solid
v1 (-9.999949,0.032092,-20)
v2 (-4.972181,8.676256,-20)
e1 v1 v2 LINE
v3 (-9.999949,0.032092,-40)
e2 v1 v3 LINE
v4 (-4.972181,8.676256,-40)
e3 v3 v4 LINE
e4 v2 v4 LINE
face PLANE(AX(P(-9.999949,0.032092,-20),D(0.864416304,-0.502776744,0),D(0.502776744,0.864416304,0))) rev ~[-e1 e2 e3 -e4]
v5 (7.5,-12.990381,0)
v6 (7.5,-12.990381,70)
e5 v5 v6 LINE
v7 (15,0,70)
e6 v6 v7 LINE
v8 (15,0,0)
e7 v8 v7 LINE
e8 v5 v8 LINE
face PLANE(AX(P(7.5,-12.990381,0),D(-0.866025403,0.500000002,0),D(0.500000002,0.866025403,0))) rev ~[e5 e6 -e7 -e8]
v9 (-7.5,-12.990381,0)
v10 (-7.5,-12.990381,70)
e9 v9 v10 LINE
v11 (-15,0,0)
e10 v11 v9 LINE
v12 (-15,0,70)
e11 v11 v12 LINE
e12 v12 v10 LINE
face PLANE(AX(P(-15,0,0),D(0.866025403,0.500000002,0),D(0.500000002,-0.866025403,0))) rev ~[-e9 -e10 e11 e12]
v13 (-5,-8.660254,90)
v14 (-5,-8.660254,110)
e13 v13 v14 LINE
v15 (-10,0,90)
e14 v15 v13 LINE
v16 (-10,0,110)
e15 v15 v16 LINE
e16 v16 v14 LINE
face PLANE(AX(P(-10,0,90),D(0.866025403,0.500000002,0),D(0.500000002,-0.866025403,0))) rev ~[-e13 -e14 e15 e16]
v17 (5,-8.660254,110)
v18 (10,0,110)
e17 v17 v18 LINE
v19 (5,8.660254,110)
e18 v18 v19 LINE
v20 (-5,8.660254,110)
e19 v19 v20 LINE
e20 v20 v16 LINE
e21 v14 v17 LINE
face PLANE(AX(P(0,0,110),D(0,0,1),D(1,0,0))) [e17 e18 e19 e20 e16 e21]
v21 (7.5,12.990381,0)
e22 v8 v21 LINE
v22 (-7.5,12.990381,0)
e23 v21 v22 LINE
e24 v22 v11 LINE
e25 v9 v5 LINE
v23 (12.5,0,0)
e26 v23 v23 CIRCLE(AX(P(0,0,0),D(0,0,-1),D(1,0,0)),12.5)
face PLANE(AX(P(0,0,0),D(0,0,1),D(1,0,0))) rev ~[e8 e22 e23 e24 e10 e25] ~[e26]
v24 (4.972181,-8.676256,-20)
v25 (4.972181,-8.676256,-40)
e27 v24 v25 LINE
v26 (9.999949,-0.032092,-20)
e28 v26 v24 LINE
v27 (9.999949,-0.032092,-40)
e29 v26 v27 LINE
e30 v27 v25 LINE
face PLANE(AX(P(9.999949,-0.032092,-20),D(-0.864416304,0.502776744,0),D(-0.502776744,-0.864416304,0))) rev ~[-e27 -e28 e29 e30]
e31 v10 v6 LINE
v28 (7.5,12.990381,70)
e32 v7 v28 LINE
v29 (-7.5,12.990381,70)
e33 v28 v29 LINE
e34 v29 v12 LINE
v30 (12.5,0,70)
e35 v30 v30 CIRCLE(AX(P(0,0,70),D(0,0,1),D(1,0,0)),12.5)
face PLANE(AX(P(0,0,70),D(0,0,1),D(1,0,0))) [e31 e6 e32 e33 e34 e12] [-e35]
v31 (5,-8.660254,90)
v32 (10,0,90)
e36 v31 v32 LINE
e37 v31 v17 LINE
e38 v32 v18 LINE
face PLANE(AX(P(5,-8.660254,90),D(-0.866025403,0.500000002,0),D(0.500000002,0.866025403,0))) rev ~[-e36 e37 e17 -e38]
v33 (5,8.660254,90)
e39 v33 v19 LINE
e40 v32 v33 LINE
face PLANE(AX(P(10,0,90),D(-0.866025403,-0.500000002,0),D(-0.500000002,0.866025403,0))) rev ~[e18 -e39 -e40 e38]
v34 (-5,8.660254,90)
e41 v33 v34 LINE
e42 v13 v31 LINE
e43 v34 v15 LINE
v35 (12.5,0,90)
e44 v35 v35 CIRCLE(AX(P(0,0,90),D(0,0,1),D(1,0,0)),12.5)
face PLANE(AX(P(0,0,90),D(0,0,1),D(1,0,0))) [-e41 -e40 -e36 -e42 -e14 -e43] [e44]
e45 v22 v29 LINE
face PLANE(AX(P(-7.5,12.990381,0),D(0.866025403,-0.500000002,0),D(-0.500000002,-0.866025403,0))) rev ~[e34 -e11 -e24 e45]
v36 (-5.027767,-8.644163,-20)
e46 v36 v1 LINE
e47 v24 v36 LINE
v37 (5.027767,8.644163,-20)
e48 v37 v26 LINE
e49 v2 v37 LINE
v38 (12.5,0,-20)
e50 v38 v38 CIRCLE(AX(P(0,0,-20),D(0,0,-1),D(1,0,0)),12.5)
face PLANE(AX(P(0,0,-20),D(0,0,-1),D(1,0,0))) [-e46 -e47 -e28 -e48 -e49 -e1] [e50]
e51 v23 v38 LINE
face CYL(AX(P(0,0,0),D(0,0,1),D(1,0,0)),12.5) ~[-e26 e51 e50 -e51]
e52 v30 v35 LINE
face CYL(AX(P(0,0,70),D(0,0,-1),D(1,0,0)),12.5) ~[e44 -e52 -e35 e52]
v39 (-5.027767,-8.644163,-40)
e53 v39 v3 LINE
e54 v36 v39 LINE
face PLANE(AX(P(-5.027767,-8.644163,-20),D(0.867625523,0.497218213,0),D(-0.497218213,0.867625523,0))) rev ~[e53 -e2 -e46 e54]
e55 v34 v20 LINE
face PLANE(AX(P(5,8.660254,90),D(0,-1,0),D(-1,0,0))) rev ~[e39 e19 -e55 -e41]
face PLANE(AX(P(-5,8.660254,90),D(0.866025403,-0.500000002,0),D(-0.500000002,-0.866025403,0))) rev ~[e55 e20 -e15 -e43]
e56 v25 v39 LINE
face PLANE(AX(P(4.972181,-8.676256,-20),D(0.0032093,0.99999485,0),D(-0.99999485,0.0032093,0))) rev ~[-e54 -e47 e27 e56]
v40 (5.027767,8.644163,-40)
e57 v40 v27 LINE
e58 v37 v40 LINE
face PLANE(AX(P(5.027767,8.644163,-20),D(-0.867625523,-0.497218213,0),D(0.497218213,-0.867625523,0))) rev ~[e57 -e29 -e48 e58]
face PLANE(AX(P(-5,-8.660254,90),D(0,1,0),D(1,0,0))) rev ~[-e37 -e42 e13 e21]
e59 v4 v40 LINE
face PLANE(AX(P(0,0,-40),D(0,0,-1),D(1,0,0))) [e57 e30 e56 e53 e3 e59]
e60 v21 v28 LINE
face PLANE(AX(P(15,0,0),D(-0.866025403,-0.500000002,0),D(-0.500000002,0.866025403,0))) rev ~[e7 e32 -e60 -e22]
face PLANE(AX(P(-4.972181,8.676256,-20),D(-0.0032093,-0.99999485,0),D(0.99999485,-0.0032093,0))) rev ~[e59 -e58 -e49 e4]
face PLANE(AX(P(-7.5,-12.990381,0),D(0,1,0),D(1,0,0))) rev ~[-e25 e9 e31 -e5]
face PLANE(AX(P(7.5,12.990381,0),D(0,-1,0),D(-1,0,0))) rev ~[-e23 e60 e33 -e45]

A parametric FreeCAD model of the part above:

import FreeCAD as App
import Part
import Sketcher
from FreeCAD import Vector
Q = App.Units.Quantity

doc = App.newDocument("Part")
body = doc.addObject("PartDesign::Body", "Body")

sketch1 = body.newObject("Sketcher::SketchObject", "Sketch")
sketch1.AttachmentSupport = (doc.getObject("XY_Plane"), [""])
sketch1.MapMode = "FlatFace"
sketch1.addGeometry([
    Part.LineSegment(Vector(-8, 13, 0), Vector(-15, 0, 0)),
    Part.LineSegment(Vector(-15, 0, 0), Vector(-8, -13, 0)),
    Part.LineSegment(Vector(-8, -13, 0), Vector(8, -13, 0)),
    Part.LineSegment(Vector(8, -13, 0), Vector(15, 0, 0)),
    Part.LineSegment(Vector(15, 0, 0), Vector(8, 13, 0)),
    Part.LineSegment(Vector(8, 13, 0), Vector(-8, 13, 0)),
], False)
sketch1.addConstraint([
    Sketcher.Constraint("Coincident", 0, 2, 1, 1),
    Sketcher.Constraint("Coincident", 1, 2, 2, 1),
    Sketcher.Constraint("Coincident", 2, 2, 3, 1),
    Sketcher.Constraint("Coincident", 3, 2, 4, 1),
    Sketcher.Constraint("Coincident", 4, 2, 5, 1),
    Sketcher.Constraint("Coincident", 5, 2, 0, 1),
    Sketcher.Constraint("Horizontal", 2),
    Sketcher.Constraint("Horizontal", 5),
    Sketcher.Constraint("Symmetric", 0, 2, 3, 2, -1, 1),
    Sketcher.Constraint("Symmetric", 1, 2, 4, 2, -1, 1),
    Sketcher.Constraint("PointOnObject", 0, 2, -1),
    Sketcher.Constraint("Parallel", 0, 3),
    Sketcher.Constraint("Vertical", 2, 2, 4, 2),
    Sketcher.Constraint("DistanceX", 2, 1, 2, 2, 15.0),
    Sketcher.Constraint("Angle", 0, Q("-120 deg")),
    Sketcher.Constraint("Distance", 0, 15.0),
])
pad1 = body.newObject("PartDesign::Pad", "Pad")
pad1.Profile = sketch1
pad1.Length = 70

sketch2 = body.newObject("Sketcher::SketchObject", "Sketch001")
sketch2.AttachmentSupport = (doc.getObject("XY_Plane"), [""])
sketch2.MapMode = "FlatFace"
sketch2.AttachmentOffset = App.Placement(Vector(0, 0, 70), App.Rotation())
sketch2.addGeometry(Part.Circle(Vector(0, 0, 0), Vector(0, 0, 1), 12), False)
sketch2.addConstraint([
    Sketcher.Constraint("Coincident", 0, 3, -1, 1),
    Sketcher.Constraint("Diameter", 0, 25.0),
])
pad2 = body.newObject("PartDesign::Pad", "Pad001")
pad2.Profile = sketch2
pad2.Length = 20

sketch3 = body.newObject("Sketcher::SketchObject", "Sketch002")
sketch3.AttachmentSupport = (doc.getObject("XY_Plane"), [""])
sketch3.MapMode = "FlatFace"
sketch3.addGeometry(Part.Circle(Vector(0, 0, 0), Vector(0, 0, 1), 12), False)
sketch3.addConstraint([
    Sketcher.Constraint("Coincident", 0, 3, -1, 1),
    Sketcher.Constraint("Diameter", 0, 25.0),
])
pad3 = body.newObject("PartDesign::Pad", "Pad002")
pad3.Profile = sketch3
pad3.Length = 20
pad3.Reversed = True

sketch4 = body.newObject("Sketcher::SketchObject", "Sketch003")
sketch4.AttachmentSupport = (doc.getObject("XY_Plane"), [""])
sketch4.MapMode = "FlatFace"
sketch4.AttachmentOffset = App.Placement(Vector(0, 0, 90), App.Rotation())
sketch4.addGeometry([
    Part.LineSegment(Vector(5, 9, 0), Vector(-5, 9, 0)),
    Part.LineSegment(Vector(-5, 9, 0), Vector(-10, 0, 0)),
    Part.LineSegment(Vector(-10, 0, 0), Vector(-5, -9, 0)),
    Part.LineSegment(Vector(-5, -9, 0), Vector(5, -9, 0)),
    Part.LineSegment(Vector(5, -9, 0), Vector(10, 0, 0)),
    Part.LineSegment(Vector(10, 0, 0), Vector(5, 9, 0)),
], False)
sketch4.addConstraint([
    Sketcher.Constraint("Coincident", 0, 2, 1, 1),
    Sketcher.Constraint("Coincident", 1, 2, 2, 1),
    Sketcher.Constraint("Coincident", 2, 2, 3, 1),
    Sketcher.Constraint("Coincident", 3, 2, 4, 1),
    Sketcher.Constraint("Coincident", 4, 2, 5, 1),
    Sketcher.Constraint("Coincident", 5, 2, 0, 1),
    Sketcher.Constraint("Horizontal", 0),
    Sketcher.Constraint("Horizontal", 3),
    Sketcher.Constraint("Symmetric", 0, 2, 3, 2, -1, 1),
    Sketcher.Constraint("Symmetric", 1, 2, 4, 2, -1, 1),
    Sketcher.Constraint("PointOnObject", 1, 2, -1),
    Sketcher.Constraint("Parallel", 2, 5),
    Sketcher.Constraint("Vertical", 0, 2, 2, 2),
    Sketcher.Constraint("DistanceX", 0, 2, 0, 1, 10.0),
    Sketcher.Constraint("Angle", 1, Q("-120 deg")),
    Sketcher.Constraint("Distance", 1, 10.0),
])
pad4 = body.newObject("PartDesign::Pad", "Pad003")
pad4.Profile = sketch4
pad4.Length = 20

sketch5 = body.newObject("Sketcher::SketchObject", "Sketch004")
sketch5.AttachmentSupport = (doc.getObject("XY_Plane"), [""])
sketch5.MapMode = "FlatFace"
sketch5.AttachmentOffset = App.Placement(Vector(0, 0, -20), App.Rotation())
sketch5.addGeometry([
    Part.LineSegment(Vector(10, 0, 0), Vector(5, -9, 0)),
    Part.LineSegment(Vector(5, -9, 0), Vector(-5, -9, 0)),
    Part.LineSegment(Vector(-5, -9, 0), Vector(-10, 0, 0)),
    Part.LineSegment(Vector(-10, 0, 0), Vector(-5, 9, 0)),
    Part.LineSegment(Vector(-5, 9, 0), Vector(5, 9, 0)),
    Part.LineSegment(Vector(5, 9, 0), Vector(10, 0, 0)),
], False)
sketch5.addConstraint([
    Sketcher.Constraint("Coincident", 0, 2, 1, 1),
    Sketcher.Constraint("Coincident", 1, 2, 2, 1),
    Sketcher.Constraint("Coincident", 2, 2, 3, 1),
    Sketcher.Constraint("Coincident", 3, 2, 4, 1),
    Sketcher.Constraint("Coincident", 4, 2, 5, 1),
    Sketcher.Constraint("Coincident", 5, 2, 0, 1),
    Sketcher.Constraint("Symmetric", 0, 2, 3, 2, -1, 1),
    Sketcher.Constraint("Symmetric", 1, 2, 4, 2, -1, 1),
    Sketcher.Constraint("Symmetric", 2, 2, 5, 2, -1, 1),
    Sketcher.Constraint("Equal", 0, 1),
    Sketcher.Constraint("Equal", 1, 2),
    Sketcher.Constraint("Distance", 0, 10.000001),
    Sketcher.Constraint("DistanceX", 2, 2, 5, 2, 19.999898),
    Sketcher.Constraint("DistanceX", -1, 1, 0, 2, 4.972181),
    Sketcher.Constraint("DistanceY", 0, 2, 2, 2, 8.708348),
])
pad5 = body.newObject("PartDesign::Pad", "Pad004")
pad5.Profile = sketch5
pad5.Length = 20
pad5.Reversed = True

doc.recompute()
